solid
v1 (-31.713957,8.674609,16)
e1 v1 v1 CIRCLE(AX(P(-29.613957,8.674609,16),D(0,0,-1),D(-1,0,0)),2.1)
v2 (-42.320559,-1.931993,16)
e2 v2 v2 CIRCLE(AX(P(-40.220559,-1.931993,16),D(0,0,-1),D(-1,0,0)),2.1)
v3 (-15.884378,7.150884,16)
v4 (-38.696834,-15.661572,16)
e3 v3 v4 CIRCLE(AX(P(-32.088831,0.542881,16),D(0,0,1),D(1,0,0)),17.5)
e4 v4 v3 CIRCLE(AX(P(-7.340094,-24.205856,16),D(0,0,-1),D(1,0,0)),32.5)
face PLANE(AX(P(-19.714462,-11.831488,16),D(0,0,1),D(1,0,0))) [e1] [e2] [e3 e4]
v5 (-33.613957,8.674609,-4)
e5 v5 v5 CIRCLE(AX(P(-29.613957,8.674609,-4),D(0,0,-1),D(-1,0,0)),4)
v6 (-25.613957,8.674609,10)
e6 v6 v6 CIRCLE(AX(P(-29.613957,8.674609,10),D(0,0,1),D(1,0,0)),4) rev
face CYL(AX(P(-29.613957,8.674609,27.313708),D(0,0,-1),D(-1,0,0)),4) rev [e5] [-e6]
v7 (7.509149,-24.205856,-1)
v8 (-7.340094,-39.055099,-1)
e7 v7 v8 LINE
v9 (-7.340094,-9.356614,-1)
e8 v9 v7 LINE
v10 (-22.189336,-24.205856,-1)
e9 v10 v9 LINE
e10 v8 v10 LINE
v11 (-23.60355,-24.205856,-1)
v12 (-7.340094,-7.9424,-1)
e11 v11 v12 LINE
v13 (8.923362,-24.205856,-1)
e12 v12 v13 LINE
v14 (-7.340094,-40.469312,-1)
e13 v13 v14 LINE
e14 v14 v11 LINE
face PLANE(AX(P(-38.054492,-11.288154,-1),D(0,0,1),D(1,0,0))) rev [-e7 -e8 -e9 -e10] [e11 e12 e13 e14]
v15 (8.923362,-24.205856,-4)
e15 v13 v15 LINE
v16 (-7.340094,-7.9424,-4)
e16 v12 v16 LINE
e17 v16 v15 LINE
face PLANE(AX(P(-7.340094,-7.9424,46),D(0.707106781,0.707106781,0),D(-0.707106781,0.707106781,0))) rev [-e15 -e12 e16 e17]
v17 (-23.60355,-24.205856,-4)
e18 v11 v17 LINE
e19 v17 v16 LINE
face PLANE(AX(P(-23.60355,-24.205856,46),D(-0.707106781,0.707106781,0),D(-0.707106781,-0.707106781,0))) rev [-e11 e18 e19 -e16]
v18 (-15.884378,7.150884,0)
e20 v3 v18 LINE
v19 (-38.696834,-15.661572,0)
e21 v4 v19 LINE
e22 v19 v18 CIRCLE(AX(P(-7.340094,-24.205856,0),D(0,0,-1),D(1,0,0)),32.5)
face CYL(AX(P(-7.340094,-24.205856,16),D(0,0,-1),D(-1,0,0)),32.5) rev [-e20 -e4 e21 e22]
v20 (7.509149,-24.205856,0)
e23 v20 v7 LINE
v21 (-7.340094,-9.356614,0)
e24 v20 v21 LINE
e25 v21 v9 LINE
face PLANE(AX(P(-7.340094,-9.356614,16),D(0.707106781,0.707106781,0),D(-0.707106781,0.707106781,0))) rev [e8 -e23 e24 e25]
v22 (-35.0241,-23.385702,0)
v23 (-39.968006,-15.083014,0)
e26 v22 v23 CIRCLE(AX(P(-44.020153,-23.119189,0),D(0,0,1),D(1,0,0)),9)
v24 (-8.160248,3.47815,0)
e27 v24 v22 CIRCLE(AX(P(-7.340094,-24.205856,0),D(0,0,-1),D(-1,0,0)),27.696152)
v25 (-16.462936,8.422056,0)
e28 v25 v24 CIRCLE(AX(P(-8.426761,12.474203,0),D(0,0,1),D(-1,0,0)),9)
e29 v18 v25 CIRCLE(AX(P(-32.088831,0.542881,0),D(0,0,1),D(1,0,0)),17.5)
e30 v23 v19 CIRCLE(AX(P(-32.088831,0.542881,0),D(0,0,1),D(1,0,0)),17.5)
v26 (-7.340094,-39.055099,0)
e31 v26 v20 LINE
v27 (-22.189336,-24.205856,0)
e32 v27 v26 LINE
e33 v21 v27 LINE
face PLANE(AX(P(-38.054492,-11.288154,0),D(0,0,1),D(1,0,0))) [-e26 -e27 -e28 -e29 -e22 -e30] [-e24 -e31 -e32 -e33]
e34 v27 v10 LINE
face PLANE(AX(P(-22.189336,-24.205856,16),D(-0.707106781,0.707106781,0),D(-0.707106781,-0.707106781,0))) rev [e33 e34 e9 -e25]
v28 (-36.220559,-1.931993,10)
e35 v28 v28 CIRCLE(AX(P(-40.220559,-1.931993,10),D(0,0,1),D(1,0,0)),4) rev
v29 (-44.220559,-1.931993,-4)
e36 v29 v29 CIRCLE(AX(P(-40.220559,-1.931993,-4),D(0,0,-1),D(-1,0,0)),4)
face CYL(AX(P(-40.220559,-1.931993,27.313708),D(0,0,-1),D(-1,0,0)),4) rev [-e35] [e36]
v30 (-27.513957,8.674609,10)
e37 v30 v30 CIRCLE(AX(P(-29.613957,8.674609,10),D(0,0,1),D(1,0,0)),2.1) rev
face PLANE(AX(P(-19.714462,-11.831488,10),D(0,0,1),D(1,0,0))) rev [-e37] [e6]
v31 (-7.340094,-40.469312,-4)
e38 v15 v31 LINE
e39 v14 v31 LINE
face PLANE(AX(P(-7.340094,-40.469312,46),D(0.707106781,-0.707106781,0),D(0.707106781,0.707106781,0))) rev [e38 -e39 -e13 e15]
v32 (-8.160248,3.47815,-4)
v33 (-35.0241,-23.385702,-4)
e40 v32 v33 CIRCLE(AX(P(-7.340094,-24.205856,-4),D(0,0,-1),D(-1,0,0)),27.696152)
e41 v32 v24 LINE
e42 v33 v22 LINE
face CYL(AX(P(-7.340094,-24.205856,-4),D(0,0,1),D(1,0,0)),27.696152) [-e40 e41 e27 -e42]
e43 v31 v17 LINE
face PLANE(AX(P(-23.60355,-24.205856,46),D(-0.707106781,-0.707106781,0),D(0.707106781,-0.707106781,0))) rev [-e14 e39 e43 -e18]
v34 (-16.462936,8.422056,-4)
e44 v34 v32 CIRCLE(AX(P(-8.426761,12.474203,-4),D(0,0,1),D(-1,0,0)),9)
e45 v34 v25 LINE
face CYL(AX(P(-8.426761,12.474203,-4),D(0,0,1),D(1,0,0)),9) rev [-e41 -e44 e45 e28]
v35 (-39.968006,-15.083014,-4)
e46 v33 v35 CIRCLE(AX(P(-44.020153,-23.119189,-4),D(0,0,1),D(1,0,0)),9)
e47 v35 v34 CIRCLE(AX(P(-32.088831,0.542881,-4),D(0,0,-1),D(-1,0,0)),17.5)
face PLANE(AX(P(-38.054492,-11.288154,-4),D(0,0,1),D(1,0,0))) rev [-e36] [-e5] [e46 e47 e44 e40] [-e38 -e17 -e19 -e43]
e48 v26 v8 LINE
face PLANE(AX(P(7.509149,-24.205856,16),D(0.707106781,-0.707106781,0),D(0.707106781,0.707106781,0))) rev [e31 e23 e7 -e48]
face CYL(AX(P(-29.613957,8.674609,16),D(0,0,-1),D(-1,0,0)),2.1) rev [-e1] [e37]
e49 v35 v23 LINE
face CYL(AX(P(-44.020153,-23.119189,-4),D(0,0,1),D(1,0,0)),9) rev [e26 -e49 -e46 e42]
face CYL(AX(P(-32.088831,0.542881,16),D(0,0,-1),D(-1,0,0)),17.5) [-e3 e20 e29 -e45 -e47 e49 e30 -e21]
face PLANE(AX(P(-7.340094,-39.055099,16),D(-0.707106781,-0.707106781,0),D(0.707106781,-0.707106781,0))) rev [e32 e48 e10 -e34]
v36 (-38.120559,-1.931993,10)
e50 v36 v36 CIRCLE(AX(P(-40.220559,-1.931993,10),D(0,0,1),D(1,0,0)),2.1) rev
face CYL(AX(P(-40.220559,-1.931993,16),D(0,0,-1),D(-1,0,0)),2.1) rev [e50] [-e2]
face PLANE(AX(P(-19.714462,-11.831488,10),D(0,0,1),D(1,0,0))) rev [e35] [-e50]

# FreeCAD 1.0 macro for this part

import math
import FreeCAD as App
import Part
import Sketcher
from FreeCAD import Vector

doc = App.newDocument("Part")
body = doc.addObject("PartDesign::Body", "Body")

sketch1 = body.newObject("Sketcher::SketchObject", "Sketch")
sketch1.AttachmentSupport = (doc.getObject("XY_Plane"), [""])
sketch1.MapMode = "FlatFace"
sketch1.addGeometry(Part.ArcOfCircle(Part.Circle(Vector(-32.088831, 0.542881, 0), Vector(0, 0, 1), 17.5), math.radians(22.185113), math.radians(247.814887)), False)
sketch1.addGeometry(Part.ArcOfCircle(Part.Circle(Vector(-7.340094, -24.205856, 0), Vector(0, 0, 1), 32.5), math.radians(105.242271), math.radians(164.757729)), False)
sketch1.addConstraint(Sketcher.Constraint("Coincident", 0, 1, 1, 1))
sketch1.addConstraint(Sketcher.Constraint("Coincident", 1, 2, 0, 2))
sketch1.addConstraint(Sketcher.Constraint("Radius", 0, 17.5))
sketch1.addConstraint(Sketcher.Constraint("Radius", 1, 32.5))
sketch1.addConstraint(Sketcher.Constraint("DistanceX", 0, 3, -1, 1, 32.088831))
sketch1.addConstraint(Sketcher.Constraint("DistanceY", -1, 1, 0, 3, 0.542881))
sketch1.addConstraint(Sketcher.Constraint("DistanceX", 0, 1, -1, 1, 15.884378))
sketch1.addConstraint(Sketcher.Constraint("DistanceY", 1, 2, -1, 1, 15.661572))
pad1 = body.newObject("PartDesign::Pad", "Pad")
pad1.Profile = sketch1
pad1.Length = 16

sketch2 = body.newObject("Sketcher::SketchObject", "Sketch001")
sketch2.AttachmentSupport = (doc.getObject("XY_Plane"), [""])
sketch2.MapMode = "FlatFace"
sketch2.addGeometry(Part.ArcOfCircle(Part.Circle(Vector(-7.340094, -24.205856, 0), Vector(0, 0, 1), 27.696152), math.radians(178.303077), math.radians(451.696923)), False)
sketch2.addGeometry(Part.ArcOfCircle(Part.Circle(Vector(-44.020153, -23.119189, 0), Vector(0, 0, 1), 9), math.radians(-1.696923), math.radians(63.241009)), False)
sketch2.addGeometry(Part.ArcOfCircle(Part.Circle(Vector(-32.088831, 0.542881, 0), Vector(0, 0, 1), 17.5), math.radians(26.758991), math.radians(243.241009)), False)
sketch2.addGeometry(Part.ArcOfCircle(Part.Circle(Vector(-8.426761, 12.474203, 0), Vector(0, 0, 1), 9), math.radians(-153.241009), math.radians(-88.303077)), False)
sketch2.addConstraint(Sketcher.Constraint("Tangent", 0, 1, 1, 1))
sketch2.addConstraint(Sketcher.Constraint("Tangent", 1, 2, 2, 2))
sketch2.addConstraint(Sketcher.Constraint("Tangent", 2, 1, 3, 1))
sketch2.addConstraint(Sketcher.Constraint("Tangent", 3, 2, 0, 2))
sketch2.addConstraint(Sketcher.Constraint("Equal", 1, 3))
sketch2.addConstraint(Sketcher.Constraint("Radius", 1, 9.0))
sketch2.addConstraint(Sketcher.Constraint("Radius", 2, 17.5))
sketch2.addConstraint(Sketcher.Constraint("Radius", 0, 27.696152))
sketch2.addConstraint(Sketcher.Constraint("DistanceX", 0, 1, -1, 1, 35.0241))
sketch2.addConstraint(Sketcher.Constraint("DistanceY", 1, 3, -1, 1, 23.119189))
sketch2.addConstraint(Sketcher.Constraint("DistanceX", 2, 3, -1, 1, 32.088831))
sketch2.addConstraint(Sketcher.Constraint("DistanceY", -1, 1, 2, 3, 0.542881))
pad2 = body.newObject("PartDesign::Pad", "Pad001")
pad2.Profile = sketch2
pad2.Length = 4
pad2.Reversed = True

sketch3 = body.newObject("Sketcher::SketchObject", "Sketch002")
sketch3.AttachmentSupport = (doc.getObject("XY_Plane"), [""])
sketch3.MapMode = "FlatFace"
sketch3.AttachmentOffset = App.Placement(Vector(0, 0, -4), App.Rotation())
sketch3.addGeometry(Part.Circle(Vector(-40.220559, -1.931993, 0), Vector(0, 0, 1), 2.1), False)
sketch3.addGeometry(Part.Circle(Vector(-29.613957, 8.674609, 0), Vector(0, 0, 1), 2.1), False)
sketch3.addConstraint(Sketcher.Constraint("Equal", 0, 1))
sketch3.addConstraint(Sketcher.Constraint("Diameter", 0, 4.2))
sketch3.addConstraint(Sketcher.Constraint("DistanceX", 0, 3, 1, 3, 10.606602))
sketch3.addConstraint(Sketcher.Constraint("DistanceY", 0, 3, 1, 3, 10.606602))
sketch3.addConstraint(Sketcher.Constraint("DistanceX", 0, 3, -1, 1, 40.220559))
sketch3.addConstraint(Sketcher.Constraint("DistanceY", -1, 1, 1, 3, 8.674609))
pocket1 = body.newObject("PartDesign::Pocket", "Pocket")
pocket1.Profile = sketch3
pocket1.Type = "ThroughAll"
pocket1.Reversed = True

sketch4 = body.newObject("Sketcher::SketchObject", "Sketch003")
sketch4.AttachmentSupport = (doc.getObject("XY_Plane"), [""])
sketch4.MapMode = "FlatFace"
sketch4.AttachmentOffset = App.Placement(Vector(0, 0, -4), App.Rotation())
sketch4.addGeometry(Part.Circle(Vector(-40.220559, -1.931993, 0), Vector(0, 0, 1), 4), False)
sketch4.addGeometry(Part.Circle(Vector(-29.613957, 8.674609, 0), Vector(0, 0, 1), 4), False)
sketch4.addConstraint(Sketcher.Constraint("Equal", 0, 1))
sketch4.addConstraint(Sketcher.Constraint("Diameter", 0, 8.0))
sketch4.addConstraint(Sketcher.Constraint("DistanceX", 0, 3, 1, 3, 10.606602))
sketch4.addConstraint(Sketcher.Constraint("DistanceY", 0, 3, 1, 3, 10.606602))
sketch4.addConstraint(Sketcher.Constraint("DistanceX", 0, 3, -1, 1, 40.220559))
sketch4.addConstraint(Sketcher.Constraint("DistanceY", -1, 1, 1, 3, 8.674609))
pocket2 = body.newObject("PartDesign::Pocket", "Pocket001")
pocket2.Profile = sketch4
pocket2.Length = 14
pocket2.Reversed = True

sketch5 = body.newObject("Sketcher::SketchObject", "Sketch004")
sketch5.AttachmentSupport = (doc.getObject("XY_Plane"), [""])
sketch5.MapMode = "FlatFace"
sketch5.AttachmentOffset = App.Placement(Vector(0, 0, -4), App.Rotation())
sketch5.addGeometry(Part.LineSegment(Vector(-23.60355, -24.205856, 0), Vector(-7.340094, -7.9424, 0)), False)
sketch5.addGeometry(Part.LineSegment(Vector(-7.340094, -7.9424, 0), Vector(8.923362, -24.205856, 0)), False)
sketch5.addGeometry(Part.LineSegment(Vector(8.923362, -24.205856, 0), Vector(-7.340094, -40.469312, 0)), False)
sketch5.addGeometry(Part.LineSegment(Vector(-7.340094, -40.469312, 0), Vector(-23.60355, -24.205856, 0)), False)
sketch5.addConstraint(Sketcher.Constraint("Coincident", 0, 2, 1, 1))
sketch5.addConstraint(Sketcher.Constraint("Coincident", 1, 2, 2, 1))
sketch5.addConstraint(Sketcher.Constraint("Coincident", 2, 2, 3, 1))
sketch5.addConstraint(Sketcher.Constraint("Coincident", 3, 2, 0, 1))
sketch5.addConstraint(Sketcher.Constraint("Perpendicular", 0, 1))
sketch5.addConstraint(Sketcher.Constraint("Perpendicular", 1, 2))
sketch5.addConstraint(Sketcher.Constraint("Perpendicular", 2, 3))
sketch5.addConstraint(Sketcher.Constraint("Horizontal", 1, 2, 3, 2))
sketch5.addConstraint(Sketcher.Constraint("Vertical", 0, 2, 2, 2))
sketch5.addConstraint(Sketcher.Constraint("Distance", 0, 23.0))
sketch5.addConstraint(Sketcher.Constraint("DistanceY", 0, 2, -1, 1, 7.9424))
sketch5.addConstraint(Sketcher.Constraint("DistanceX", 3, 2, -1, 1, 23.60355))
pocket3 = body.newObject("PartDesign::Pocket", "Pocket002")
pocket3.Profile = sketch5
pocket3.Length = 3
pocket3.Reversed = True

sketch6 = body.newObject("Sketcher::SketchObject", "Sketch005")
sketch6.AttachmentSupport = (doc.getObject("XY_Plane"), [""])
sketch6.MapMode = "FlatFace"
sketch6.AttachmentOffset = App.Placement(Vector(0, 0, -1), App.Rotation())
sketch6.addGeometry(Part.LineSegment(Vector(-7.340094, -39.055099, 0), Vector(-22.189336, -24.205856, 0)), False)
sketch6.addGeometry(Part.LineSegment(Vector(-22.189336, -24.205856, 0), Vector(-7.340094, -9.356614, 0)), False)
sketch6.addGeometry(Part.LineSegment(Vector(-7.340094, -9.356614, 0), Vector(7.509149, -24.205856, 0)), False)
sketch6.addGeometry(Part.LineSegment(Vector(7.509149, -24.205856, 0), Vector(-7.340094, -39.055099, 0)), False)
sketch6.addConstraint(Sketcher.Constraint("Coincident", 0, 2, 1, 1))
sketch6.addConstraint(Sketcher.Constraint("Coincident", 1, 2, 2, 1))
sketch6.addConstraint(Sketcher.Constraint("Coincident", 2, 2, 3, 1))
sketch6.addConstraint(Sketcher.Constraint("Coincident", 3, 2, 0, 1))
sketch6.addConstraint(Sketcher.Constraint("Perpendicular", 0, 1))
sketch6.addConstraint(Sketcher.Constraint("Perpendicular", 1, 2))
sketch6.addConstraint(Sketcher.Constraint("Perpendicular", 2, 3))
sketch6.addConstraint(Sketcher.Constraint("Horizontal", 0, 2, 2, 2))
sketch6.addConstraint(Sketcher.Constraint("Vertical", 1, 2, 3, 2))
sketch6.addConstraint(Sketcher.Constraint("Distance", 0, 21.0))
sketch6.addConstraint(Sketcher.Constraint("DistanceY", 3, 2, -1, 1, 39.055099))
sketch6.addConstraint(Sketcher.Constraint("DistanceX", -1, 1, 2, 2, 7.509149))
pocket4 = body.newObject("PartDesign::Pocket", "Pocket003")
pocket4.Profile = sketch6
pocket4.Type = "ThroughAll"
pocket4.Reversed = True

doc.recompute()
